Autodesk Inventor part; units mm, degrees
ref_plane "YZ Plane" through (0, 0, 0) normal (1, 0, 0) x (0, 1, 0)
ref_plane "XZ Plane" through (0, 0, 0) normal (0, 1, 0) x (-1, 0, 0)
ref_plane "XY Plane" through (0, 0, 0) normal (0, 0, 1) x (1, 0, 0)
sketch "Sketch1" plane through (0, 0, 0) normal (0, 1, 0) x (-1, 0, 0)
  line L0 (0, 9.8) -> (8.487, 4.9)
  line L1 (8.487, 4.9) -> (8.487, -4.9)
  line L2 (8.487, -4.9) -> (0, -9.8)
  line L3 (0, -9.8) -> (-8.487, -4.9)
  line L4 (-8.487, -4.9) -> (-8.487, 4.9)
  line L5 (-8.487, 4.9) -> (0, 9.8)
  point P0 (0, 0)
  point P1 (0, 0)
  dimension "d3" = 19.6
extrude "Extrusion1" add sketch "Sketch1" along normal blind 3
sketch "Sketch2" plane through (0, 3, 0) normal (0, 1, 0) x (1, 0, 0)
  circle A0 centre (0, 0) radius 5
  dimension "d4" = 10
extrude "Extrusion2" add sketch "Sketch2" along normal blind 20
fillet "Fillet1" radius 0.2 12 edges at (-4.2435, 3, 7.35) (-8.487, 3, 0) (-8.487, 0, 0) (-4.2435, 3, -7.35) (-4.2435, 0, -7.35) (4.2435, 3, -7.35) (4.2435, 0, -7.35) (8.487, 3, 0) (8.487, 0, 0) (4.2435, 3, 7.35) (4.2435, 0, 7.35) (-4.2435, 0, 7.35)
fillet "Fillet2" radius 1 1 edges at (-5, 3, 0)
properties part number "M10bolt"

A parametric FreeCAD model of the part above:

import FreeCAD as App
import Part
import Sketcher
Q = App.Units.Quantity


def edges_at(feature, points):
    """Names of the edges that pass closest to the given points."""
    edges = feature.Shape.Edges
    near = lambda p: min(range(len(edges)), key=lambda i: edges[i].distToShape(Part.Vertex(*p))[0])
    return sorted({f"Edge{near(p) + 1}" for p in points})

doc = App.newDocument("Part")
body = doc.addObject("PartDesign::Body", "Body")

sketch1 = doc.addObject("Sketcher::SketchObject", "Sketch")
body.addObject(sketch1)
sketch1.AttachmentSupport = (doc.XZ_Plane, [""])
sketch1.MapMode = "FlatFace"
sketch1.addGeometry([
    Part.LineSegment(App.Vector(-8.487, 4.9, 0), App.Vector(0, 9.8, 0)),
    Part.LineSegment(App.Vector(0, 9.8, 0), App.Vector(8.487, 4.9, 0)),
    Part.LineSegment(App.Vector(8.487, 4.9, 0), App.Vector(8.487, -4.9, 0)),
    Part.LineSegment(App.Vector(8.487, -4.9, 0), App.Vector(0, -9.8, 0)),
    Part.LineSegment(App.Vector(0, -9.8, 0), App.Vector(-8.487, -4.9, 0)),
    Part.LineSegment(App.Vector(-8.487, -4.9, 0), App.Vector(-8.487, 4.9, 0)),
], False)
sketch1.addConstraint([
    Sketcher.Constraint("Coincident", 0, 2, 1, 1),
    Sketcher.Constraint("Coincident", 1, 2, 2, 1),
    Sketcher.Constraint("Coincident", 2, 2, 3, 1),
    Sketcher.Constraint("Coincident", 3, 2, 4, 1),
    Sketcher.Constraint("Coincident", 4, 2, 5, 1),
    Sketcher.Constraint("Coincident", 5, 2, 0, 1),
    Sketcher.Constraint("Vertical", 2),
    Sketcher.Constraint("Vertical", 5),
    Sketcher.Constraint("Symmetric", 0, 2, 3, 2, -1, 1),
    Sketcher.Constraint("Symmetric", 1, 2, 4, 2, -1, 1),
    Sketcher.Constraint("PointOnObject", 0, 2, -2),
    Sketcher.Constraint("Parallel", 0, 3),
    Sketcher.Constraint("Horizontal", 2, 2, 4, 2),
    Sketcher.Constraint("DistanceY", 3, 2, 0, 2, Q("19.6 mm")),
    Sketcher.Constraint("Angle", 0, Q("30.0001 deg")),
    Sketcher.Constraint("DistanceY", 2, 2, 2, 1, Q("9.8 mm")),
])
pad1 = doc.addObject("PartDesign::Pad", "Pad")
body.addObject(pad1)
pad1.Profile = sketch1
pad1.Length = 3
pad1.Reversed = True

sketch2 = doc.addObject("Sketcher::SketchObject", "Sketch001")
body.addObject(sketch2)
sketch2.AttachmentSupport = (doc.XZ_Plane, [""])
sketch2.MapMode = "FlatFace"
sketch2.AttachmentOffset = App.Placement(App.Vector(0, 0, -3), App.Rotation())
sketch2.addGeometry(Part.Circle(App.Vector(0, 0, 0), App.Vector(0, 0, 1), 5), False)
sketch2.addConstraint([
    Sketcher.Constraint("Coincident", 0, 3, -1, 1),
    Sketcher.Constraint("Diameter", 0, Q("10 mm")),
])
pad2 = doc.addObject("PartDesign::Pad", "Pad001")
body.addObject(pad2)
pad2.Profile = sketch2
pad2.Length = 20
pad2.Reversed = True
doc.recompute()

fillet = doc.addObject("PartDesign::Fillet", "Fillet")
body.addObject(fillet)
fillet.Base = (pad2, edges_at(pad2, [
    (-4.244, 3, 7.35),
    (-8.487, 3, 0),
    (-8.487, 0, 0),
    (-4.244, 3, -7.35),
    (-4.244, 0, -7.35),
    (4.244, 3, -7.35),
    (4.244, 0, -7.35),
    (8.487, 3, 0),
    (8.487, 0, 0),
    (4.244, 3, 7.35),
    (4.244, 0, 7.35),
    (-4.244, 0, 7.35),
]))
fillet.Radius = 0.2
doc.recompute()

fillet2 = doc.addObject("PartDesign::Fillet", "Fillet001")
body.addObject(fillet2)
fillet2.Base = (fillet, edges_at(fillet, [(-5, 3, 0)]))
fillet2.Radius = 1

doc.recompute()
